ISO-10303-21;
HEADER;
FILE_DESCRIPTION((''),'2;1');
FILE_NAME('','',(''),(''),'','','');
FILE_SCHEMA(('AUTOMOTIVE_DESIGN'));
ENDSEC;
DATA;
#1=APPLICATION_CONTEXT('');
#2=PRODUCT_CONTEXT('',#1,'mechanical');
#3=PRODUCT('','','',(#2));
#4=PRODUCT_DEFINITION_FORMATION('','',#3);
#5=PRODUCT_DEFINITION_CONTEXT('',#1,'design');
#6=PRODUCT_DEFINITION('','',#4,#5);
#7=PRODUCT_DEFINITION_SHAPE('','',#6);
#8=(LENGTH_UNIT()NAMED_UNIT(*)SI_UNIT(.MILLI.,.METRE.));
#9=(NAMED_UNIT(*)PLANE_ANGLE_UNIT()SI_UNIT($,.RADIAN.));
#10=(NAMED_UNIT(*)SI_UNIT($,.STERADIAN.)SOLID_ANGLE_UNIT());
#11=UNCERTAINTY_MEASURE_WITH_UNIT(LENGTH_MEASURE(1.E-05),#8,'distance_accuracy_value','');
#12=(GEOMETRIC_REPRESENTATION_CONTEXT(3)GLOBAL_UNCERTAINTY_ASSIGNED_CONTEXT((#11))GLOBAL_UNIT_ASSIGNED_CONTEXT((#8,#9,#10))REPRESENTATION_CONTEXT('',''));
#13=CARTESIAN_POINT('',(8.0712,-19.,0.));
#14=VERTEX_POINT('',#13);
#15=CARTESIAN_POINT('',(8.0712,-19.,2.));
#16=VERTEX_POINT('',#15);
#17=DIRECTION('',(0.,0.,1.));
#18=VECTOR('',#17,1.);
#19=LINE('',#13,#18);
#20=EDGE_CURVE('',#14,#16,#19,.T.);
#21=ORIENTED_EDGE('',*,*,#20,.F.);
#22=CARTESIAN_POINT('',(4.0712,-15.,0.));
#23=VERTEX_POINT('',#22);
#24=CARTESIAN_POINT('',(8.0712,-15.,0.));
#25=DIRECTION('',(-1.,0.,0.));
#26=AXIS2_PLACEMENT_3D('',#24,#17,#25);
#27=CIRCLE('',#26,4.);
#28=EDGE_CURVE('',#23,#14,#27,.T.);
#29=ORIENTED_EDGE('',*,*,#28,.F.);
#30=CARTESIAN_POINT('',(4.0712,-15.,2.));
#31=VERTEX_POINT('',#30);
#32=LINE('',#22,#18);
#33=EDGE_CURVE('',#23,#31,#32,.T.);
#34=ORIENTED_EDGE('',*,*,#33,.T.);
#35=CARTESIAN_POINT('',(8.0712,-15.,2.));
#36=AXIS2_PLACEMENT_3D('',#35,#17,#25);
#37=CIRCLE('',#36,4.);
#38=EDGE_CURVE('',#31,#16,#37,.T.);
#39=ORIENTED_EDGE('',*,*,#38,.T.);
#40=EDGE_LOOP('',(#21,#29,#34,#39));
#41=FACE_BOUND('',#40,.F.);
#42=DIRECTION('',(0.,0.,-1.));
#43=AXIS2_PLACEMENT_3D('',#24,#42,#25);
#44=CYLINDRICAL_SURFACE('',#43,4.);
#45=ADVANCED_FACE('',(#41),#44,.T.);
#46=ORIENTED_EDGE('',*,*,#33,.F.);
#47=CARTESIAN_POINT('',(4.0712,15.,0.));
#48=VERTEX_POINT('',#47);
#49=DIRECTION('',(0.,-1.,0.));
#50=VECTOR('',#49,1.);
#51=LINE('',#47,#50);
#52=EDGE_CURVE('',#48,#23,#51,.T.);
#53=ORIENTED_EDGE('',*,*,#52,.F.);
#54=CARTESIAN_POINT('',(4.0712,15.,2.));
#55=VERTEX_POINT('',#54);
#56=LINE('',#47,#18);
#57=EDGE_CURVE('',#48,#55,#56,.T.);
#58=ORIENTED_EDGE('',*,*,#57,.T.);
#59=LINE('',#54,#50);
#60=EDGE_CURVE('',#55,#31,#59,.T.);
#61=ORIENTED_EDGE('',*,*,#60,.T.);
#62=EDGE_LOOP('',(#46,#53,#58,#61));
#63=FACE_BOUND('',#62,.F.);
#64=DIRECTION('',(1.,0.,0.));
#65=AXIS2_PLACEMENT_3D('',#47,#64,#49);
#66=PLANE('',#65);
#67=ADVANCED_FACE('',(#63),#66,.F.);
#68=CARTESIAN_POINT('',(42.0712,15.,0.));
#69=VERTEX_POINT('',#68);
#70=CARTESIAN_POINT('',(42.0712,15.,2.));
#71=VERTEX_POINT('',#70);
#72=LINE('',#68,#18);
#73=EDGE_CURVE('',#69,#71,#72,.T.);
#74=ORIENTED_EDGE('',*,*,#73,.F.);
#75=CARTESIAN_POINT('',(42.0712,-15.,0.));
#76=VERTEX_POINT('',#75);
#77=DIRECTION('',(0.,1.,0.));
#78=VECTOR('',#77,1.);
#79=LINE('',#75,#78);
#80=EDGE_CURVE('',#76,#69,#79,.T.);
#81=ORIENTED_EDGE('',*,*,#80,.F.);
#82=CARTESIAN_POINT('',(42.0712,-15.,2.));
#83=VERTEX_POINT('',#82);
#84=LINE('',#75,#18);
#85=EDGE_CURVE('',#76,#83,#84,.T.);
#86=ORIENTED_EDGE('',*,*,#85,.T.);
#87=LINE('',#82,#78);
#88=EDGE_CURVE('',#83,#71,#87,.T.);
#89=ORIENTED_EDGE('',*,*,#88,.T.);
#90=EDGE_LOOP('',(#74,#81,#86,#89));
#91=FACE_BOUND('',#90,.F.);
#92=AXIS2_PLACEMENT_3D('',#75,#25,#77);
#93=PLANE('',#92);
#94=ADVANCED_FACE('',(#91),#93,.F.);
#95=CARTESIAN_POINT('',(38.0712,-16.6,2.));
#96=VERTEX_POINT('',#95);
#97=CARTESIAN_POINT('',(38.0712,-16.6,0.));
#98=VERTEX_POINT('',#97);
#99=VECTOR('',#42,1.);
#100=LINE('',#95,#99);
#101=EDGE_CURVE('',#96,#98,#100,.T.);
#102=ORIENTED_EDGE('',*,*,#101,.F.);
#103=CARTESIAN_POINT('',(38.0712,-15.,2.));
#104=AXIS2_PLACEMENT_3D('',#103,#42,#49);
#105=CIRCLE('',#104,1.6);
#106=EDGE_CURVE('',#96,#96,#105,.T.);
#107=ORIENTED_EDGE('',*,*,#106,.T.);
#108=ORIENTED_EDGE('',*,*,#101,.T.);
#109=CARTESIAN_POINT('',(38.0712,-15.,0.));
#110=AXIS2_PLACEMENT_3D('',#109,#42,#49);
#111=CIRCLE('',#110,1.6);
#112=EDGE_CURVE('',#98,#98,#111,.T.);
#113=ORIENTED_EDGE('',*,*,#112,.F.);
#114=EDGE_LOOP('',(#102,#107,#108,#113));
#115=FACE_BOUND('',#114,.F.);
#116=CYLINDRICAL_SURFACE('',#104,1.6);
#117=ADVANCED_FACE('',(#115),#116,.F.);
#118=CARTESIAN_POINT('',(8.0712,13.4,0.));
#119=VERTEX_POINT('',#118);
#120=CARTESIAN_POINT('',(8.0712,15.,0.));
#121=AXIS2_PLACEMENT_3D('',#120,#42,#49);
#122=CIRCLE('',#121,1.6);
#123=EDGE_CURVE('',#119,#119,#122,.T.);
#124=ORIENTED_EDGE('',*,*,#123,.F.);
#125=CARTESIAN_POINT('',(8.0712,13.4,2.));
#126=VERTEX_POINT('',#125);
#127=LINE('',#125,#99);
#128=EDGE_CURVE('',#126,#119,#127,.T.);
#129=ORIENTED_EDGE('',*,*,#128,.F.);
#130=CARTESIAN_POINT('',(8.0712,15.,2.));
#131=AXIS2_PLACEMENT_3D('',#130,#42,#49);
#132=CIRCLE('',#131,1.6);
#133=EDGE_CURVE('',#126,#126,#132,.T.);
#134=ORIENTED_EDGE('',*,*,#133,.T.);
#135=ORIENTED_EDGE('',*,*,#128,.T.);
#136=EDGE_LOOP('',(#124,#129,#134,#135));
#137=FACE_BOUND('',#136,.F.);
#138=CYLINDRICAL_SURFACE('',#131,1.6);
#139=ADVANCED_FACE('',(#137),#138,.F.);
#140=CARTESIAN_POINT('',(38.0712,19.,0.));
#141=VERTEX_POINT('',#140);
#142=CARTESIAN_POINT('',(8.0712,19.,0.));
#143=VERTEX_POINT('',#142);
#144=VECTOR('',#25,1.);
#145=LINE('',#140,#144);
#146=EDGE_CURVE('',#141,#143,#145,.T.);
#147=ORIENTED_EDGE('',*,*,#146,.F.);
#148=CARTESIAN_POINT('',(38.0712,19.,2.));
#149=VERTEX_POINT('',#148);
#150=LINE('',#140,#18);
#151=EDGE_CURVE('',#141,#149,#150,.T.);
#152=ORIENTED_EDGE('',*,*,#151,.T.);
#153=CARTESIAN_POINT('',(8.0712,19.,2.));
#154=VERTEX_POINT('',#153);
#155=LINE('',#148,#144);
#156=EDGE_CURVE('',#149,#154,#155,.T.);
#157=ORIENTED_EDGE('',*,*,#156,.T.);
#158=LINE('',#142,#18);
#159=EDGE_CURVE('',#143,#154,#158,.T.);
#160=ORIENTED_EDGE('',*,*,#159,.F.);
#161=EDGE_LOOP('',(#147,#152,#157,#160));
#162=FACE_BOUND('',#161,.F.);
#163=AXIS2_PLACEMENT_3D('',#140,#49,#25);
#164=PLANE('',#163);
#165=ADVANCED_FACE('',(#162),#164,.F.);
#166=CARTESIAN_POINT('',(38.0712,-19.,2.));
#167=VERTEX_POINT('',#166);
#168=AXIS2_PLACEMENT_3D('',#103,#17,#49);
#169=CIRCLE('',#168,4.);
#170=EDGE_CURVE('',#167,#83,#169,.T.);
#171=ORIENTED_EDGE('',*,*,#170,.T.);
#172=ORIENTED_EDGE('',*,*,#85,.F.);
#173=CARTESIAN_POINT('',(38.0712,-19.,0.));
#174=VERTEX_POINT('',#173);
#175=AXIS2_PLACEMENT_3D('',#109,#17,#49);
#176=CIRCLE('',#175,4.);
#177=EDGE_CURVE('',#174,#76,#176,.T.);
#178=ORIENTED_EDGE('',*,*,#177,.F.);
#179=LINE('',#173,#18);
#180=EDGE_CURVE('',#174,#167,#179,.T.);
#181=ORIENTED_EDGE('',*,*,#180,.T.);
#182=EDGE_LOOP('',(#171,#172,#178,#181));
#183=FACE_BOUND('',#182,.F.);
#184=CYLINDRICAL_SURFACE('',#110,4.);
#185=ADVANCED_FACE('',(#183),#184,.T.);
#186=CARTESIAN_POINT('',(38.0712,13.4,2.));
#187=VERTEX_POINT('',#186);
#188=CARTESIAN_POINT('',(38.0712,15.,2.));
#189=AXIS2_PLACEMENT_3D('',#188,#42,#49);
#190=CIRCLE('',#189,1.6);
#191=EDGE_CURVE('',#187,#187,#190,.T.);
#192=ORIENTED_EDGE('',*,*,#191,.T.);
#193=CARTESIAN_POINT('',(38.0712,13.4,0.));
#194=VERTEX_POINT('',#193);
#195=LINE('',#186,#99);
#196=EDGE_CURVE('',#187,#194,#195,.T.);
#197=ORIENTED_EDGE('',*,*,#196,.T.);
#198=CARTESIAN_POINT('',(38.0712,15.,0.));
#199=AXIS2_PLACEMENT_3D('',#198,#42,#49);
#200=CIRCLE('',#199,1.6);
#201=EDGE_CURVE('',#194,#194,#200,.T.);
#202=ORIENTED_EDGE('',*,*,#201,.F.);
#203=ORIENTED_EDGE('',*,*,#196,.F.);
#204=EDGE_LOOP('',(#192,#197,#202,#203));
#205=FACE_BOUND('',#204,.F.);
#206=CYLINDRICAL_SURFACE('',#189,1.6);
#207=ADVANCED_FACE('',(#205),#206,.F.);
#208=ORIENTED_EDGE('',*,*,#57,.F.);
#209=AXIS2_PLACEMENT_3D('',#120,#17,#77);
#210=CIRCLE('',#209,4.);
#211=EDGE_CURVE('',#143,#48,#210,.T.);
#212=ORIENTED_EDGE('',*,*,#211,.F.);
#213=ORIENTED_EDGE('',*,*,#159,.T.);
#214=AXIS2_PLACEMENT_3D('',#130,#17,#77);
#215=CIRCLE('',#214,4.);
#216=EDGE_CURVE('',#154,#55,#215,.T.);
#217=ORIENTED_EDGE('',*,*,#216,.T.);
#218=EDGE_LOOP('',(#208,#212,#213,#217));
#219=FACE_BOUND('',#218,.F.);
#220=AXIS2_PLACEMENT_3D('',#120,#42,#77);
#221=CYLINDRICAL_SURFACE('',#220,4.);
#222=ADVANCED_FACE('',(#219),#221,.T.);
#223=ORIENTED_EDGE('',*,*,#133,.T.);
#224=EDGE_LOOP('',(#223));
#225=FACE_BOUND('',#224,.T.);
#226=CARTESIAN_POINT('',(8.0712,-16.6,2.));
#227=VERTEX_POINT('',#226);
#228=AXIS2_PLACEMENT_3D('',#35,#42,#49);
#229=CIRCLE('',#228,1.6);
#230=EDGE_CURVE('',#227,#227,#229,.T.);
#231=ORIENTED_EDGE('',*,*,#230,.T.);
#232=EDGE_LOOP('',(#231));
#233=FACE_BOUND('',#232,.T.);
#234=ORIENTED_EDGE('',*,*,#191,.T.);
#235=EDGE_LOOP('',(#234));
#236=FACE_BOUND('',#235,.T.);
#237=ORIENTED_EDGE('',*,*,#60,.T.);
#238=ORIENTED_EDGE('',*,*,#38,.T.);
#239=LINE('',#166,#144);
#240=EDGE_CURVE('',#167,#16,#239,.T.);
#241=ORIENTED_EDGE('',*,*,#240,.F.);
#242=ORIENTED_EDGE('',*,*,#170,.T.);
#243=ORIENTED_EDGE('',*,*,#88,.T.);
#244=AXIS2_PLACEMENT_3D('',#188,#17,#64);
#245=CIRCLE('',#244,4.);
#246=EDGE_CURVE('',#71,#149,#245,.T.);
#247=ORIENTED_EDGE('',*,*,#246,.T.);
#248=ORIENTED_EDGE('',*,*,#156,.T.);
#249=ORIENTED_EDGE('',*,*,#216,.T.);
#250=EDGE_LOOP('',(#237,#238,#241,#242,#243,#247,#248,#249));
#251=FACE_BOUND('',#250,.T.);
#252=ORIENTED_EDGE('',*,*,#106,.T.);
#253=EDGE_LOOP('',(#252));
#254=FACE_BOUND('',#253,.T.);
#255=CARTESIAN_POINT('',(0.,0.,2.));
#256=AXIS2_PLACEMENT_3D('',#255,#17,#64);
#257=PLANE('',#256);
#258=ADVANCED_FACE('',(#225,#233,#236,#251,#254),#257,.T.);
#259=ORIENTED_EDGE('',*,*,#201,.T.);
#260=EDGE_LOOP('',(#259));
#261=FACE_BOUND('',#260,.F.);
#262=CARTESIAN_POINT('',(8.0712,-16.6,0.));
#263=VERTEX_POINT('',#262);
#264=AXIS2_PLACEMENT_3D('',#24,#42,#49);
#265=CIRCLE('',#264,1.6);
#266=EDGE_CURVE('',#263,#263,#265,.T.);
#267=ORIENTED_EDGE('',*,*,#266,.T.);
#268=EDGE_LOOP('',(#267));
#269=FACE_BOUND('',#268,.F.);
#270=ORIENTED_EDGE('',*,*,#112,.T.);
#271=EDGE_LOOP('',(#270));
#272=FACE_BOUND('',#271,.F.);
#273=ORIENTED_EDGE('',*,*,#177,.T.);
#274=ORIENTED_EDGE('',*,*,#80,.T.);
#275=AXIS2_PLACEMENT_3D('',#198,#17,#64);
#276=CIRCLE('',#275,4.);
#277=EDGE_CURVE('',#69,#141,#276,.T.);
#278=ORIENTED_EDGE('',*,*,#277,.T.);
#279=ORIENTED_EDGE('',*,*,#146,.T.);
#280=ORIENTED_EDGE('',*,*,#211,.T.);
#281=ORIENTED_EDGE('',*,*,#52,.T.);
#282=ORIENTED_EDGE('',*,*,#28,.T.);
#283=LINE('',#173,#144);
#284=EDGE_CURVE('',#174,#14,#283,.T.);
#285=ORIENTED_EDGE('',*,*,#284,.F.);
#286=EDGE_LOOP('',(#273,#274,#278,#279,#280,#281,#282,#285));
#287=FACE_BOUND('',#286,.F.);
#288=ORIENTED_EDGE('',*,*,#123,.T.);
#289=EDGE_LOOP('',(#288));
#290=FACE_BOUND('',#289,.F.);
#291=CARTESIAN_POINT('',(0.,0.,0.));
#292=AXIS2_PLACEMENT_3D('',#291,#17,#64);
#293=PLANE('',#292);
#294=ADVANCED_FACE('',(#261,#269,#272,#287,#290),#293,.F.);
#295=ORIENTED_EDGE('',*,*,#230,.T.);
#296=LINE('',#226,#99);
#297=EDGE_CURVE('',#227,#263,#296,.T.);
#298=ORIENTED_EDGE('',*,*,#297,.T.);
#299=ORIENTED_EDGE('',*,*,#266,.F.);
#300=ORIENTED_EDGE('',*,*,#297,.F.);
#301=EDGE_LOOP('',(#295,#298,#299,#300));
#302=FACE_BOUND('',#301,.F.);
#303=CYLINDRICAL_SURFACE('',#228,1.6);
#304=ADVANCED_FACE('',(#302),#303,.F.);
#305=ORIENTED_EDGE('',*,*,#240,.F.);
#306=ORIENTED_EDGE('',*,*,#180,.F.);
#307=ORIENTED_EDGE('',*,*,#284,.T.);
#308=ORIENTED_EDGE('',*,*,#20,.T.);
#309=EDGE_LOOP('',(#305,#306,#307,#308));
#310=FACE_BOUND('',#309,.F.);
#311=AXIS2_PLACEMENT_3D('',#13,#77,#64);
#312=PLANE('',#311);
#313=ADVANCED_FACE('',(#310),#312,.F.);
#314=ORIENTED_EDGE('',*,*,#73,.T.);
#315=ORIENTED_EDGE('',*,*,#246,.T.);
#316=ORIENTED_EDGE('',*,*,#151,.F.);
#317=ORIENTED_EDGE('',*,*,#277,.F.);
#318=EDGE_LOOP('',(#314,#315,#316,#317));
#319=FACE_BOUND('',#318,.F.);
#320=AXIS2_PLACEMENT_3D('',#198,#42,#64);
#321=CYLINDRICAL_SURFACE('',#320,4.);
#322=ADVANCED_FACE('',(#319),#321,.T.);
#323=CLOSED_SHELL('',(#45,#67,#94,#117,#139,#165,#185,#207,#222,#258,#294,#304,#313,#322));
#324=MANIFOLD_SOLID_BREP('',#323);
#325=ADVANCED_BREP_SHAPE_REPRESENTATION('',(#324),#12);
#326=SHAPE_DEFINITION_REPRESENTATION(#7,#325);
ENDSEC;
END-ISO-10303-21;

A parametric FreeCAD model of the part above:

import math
import FreeCAD as App
import Part
import Sketcher
from FreeCAD import Vector
Q = App.Units.Quantity

doc = App.newDocument("Part")
body = doc.addObject("PartDesign::Body", "Body")

sketch1 = body.newObject("Sketcher::SketchObject", "Sketch")
sketch1.AttachmentSupport = (doc.getObject("XY_Plane"), [""])
sketch1.MapMode = "FlatFace"
sketch1.addGeometry([
    Part.LineSegment(Vector(8.1, -19, 0), Vector(38.1, -19, 0)),
    Part.ArcOfCircle(Part.Circle(Vector(38.1, -15, 0), Vector(0, 0, 1), 4), math.radians(-90), math.radians(0)),
    Part.LineSegment(Vector(42.1, -15, 0), Vector(42.1, 15, 0)),
    Part.ArcOfCircle(Part.Circle(Vector(38.1, 15, 0), Vector(0, 0, 1), 4), math.radians(0), math.radians(90)),
    Part.LineSegment(Vector(38.1, 19, 0), Vector(8.1, 19, 0)),
    Part.ArcOfCircle(Part.Circle(Vector(8.1, 15, 0), Vector(0, 0, 1), 4), math.radians(90), math.radians(180)),
    Part.LineSegment(Vector(4.1, 15, 0), Vector(4.1, -15, 0)),
    Part.ArcOfCircle(Part.Circle(Vector(8.1, -15, 0), Vector(0, 0, 1), 4), math.radians(180), math.radians(270)),
], False)
sketch1.addConstraint([
    Sketcher.Constraint("Tangent", 0, 2, 1, 1),
    Sketcher.Constraint("Tangent", 1, 2, 2, 1),
    Sketcher.Constraint("Tangent", 2, 2, 3, 1),
    Sketcher.Constraint("Tangent", 3, 2, 4, 1),
    Sketcher.Constraint("Tangent", 4, 2, 5, 1),
    Sketcher.Constraint("Tangent", 5, 2, 6, 1),
    Sketcher.Constraint("Tangent", 6, 2, 7, 1),
    Sketcher.Constraint("Tangent", 7, 2, 0, 1),
    Sketcher.Constraint("Horizontal", 0),
    Sketcher.Constraint("Vertical", 2),
    Sketcher.Constraint("Horizontal", 4),
    Sketcher.Constraint("Vertical", 6),
    Sketcher.Constraint("Equal", 1, 3),
    Sketcher.Constraint("Equal", 3, 5),
    Sketcher.Constraint("Equal", 5, 7),
    Sketcher.Constraint("Equal", 4, 2),
    Sketcher.Constraint("Radius", 1, Q("4 mm")),
    Sketcher.Constraint("DistanceX", 0, 1, 0, 2, Q("30 mm")),
    Sketcher.Constraint("DistanceY", 1, 3, -1, 1, Q("15 mm")),
    Sketcher.Constraint("DistanceX", -1, 1, 1, 3, Q("38.0712 mm")),
])
pad1 = body.newObject("PartDesign::Pad", "Pad")
pad1.Profile = sketch1
pad1.Length = 2

sketch2 = body.newObject("Sketcher::SketchObject", "Sketch001")
sketch2.AttachmentSupport = (doc.getObject("XY_Plane"), [""])
sketch2.MapMode = "FlatFace"
sketch2.AttachmentOffset = App.Placement(Vector(0, 0, 2), App.Rotation())
sketch2.addGeometry([
    Part.Circle(Vector(8.1, 15, 0), Vector(0, 0, 1), 1.6),
    Part.Circle(Vector(8.1, -15, 0), Vector(0, 0, 1), 1.6),
    Part.Circle(Vector(38.1, -15, 0), Vector(0, 0, 1), 1.6),
    Part.Circle(Vector(38.1, 15, 0), Vector(0, 0, 1), 1.6),
], False)
sketch2.addConstraint([
    Sketcher.Constraint("Equal", 0, 1),
    Sketcher.Constraint("Equal", 1, 2),
    Sketcher.Constraint("Equal", 2, 3),
    Sketcher.Constraint("Symmetric", 0, 3, 1, 3, -1),
    Sketcher.Constraint("Symmetric", 2, 3, 3, 3, -1),
    Sketcher.Constraint("Horizontal", 1, 3, 2, 3),
    Sketcher.Constraint("Diameter", 0, Q("3.2 mm")),
    Sketcher.Constraint("DistanceY", -1, 1, 0, 3, Q("15 mm")),
    Sketcher.Constraint("DistanceX", 1, 3, 2, 3, Q("30 mm")),
    Sketcher.Constraint("DistanceX", -1, 1, 0, 3, Q("8.0712 mm")),
])
doc.recompute()
hole = body.newObject("PartDesign::Hole", "Hole")
hole.Profile = sketch2
hole.ThreadType = "None"
hole.Diameter = 3.2
hole.DepthType = "ThroughAll"

doc.recompute()
